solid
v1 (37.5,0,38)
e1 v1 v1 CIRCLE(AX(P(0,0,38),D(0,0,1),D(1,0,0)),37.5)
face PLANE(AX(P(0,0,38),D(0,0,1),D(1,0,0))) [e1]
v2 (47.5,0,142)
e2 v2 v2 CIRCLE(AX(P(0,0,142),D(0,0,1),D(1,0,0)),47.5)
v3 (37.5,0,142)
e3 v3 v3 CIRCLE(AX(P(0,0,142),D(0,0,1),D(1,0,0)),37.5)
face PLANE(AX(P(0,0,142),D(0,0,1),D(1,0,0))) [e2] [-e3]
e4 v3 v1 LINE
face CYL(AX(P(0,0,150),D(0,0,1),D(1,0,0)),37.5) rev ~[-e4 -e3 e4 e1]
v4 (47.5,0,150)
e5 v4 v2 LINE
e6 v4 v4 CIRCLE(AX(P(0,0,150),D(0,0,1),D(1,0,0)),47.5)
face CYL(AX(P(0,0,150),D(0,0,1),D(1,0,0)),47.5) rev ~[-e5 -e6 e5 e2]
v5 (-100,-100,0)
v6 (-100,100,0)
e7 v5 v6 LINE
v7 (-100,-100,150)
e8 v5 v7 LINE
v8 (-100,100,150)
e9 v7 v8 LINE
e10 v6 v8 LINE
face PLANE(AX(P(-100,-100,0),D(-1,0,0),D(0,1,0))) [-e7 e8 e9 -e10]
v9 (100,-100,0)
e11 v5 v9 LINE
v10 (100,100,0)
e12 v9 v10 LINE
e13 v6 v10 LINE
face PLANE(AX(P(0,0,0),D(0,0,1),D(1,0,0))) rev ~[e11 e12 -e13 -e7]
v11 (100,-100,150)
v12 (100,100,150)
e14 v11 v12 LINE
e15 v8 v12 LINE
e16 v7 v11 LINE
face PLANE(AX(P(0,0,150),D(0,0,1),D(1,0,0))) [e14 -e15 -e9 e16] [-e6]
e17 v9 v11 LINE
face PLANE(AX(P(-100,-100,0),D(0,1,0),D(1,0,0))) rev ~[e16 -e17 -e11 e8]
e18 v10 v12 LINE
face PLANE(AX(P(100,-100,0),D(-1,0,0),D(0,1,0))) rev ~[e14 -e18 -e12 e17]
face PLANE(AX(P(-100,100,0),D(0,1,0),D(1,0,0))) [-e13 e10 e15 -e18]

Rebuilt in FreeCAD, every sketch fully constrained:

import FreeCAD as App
import Part
import Sketcher

V = App.Vector


def add_polygon(sketch, points):
    """Adds a closed chain of lines whose ends are joined by coincident constraints."""
    first, n = sketch.GeometryCount, len(points)
    for a, b in zip(points, points[1:] + points[:1]):
        sketch.addGeometry(Part.LineSegment(App.Vector(*a, 0), App.Vector(*b, 0)), False)
    for i in range(n):
        sketch.addConstraint(Sketcher.Constraint("Coincident", first + i, 2, first + (i + 1) % n, 1))

doc = App.newDocument("Part")
params = doc.addObject("Spreadsheet::Sheet", "Params")
for row, (alias, value) in enumerate([
    ("sketch1_width", "200 mm"),
    ("pad1_length", "150 mm"),
    ("sketch2_diameter", "75 mm"),
    ("pocket1_length", "112 mm"),
    ("sketch3_diameter", "95 mm"),
    ("pocket2_length", "8 mm"),
], start=1):
    params.set(f"A{row}", alias)
    params.set(f"B{row}", "=" + value)
    params.setAlias(f"B{row}", alias)

body = doc.addObject("PartDesign::Body", "Body")

# Sketch on XY plane
sketch1 = body.newObject("Sketcher::SketchObject", "Sketch")
sketch1.AttachmentSupport = (doc.getObject("XY_Plane"), [""])
sketch1.MapMode = "FlatFace"
add_polygon(sketch1, [(-100, 100), (-100, -100), (100, -100), (100, 100)])  # lines 0-3
sketch1.addConstraint(Sketcher.Constraint("Vertical", 0))
sketch1.addConstraint(Sketcher.Constraint("Horizontal", 1))
sketch1.addConstraint(Sketcher.Constraint("Vertical", 2))
sketch1.addConstraint(Sketcher.Constraint("Horizontal", 3))
sketch1.addConstraint(Sketcher.Constraint("Symmetric", 0, 2, 2, 2, -1, 1))
sketch1.addConstraint(Sketcher.Constraint("Equal", 3, 0))
sketch1.addConstraint(Sketcher.Constraint("DistanceX", 1, 1, 1, 2, 200.0))
sketch1.setExpression("Constraints[10]", "Params.sketch1_width")
pad1 = body.newObject("PartDesign::Pad", "Pad")
pad1.Profile = sketch1
pad1.setExpression("Length", "Params.pad1_length")

# Sketch on XY plane
sketch2 = body.newObject("Sketcher::SketchObject", "Sketch001")
sketch2.AttachmentSupport = (doc.getObject("XY_Plane"), [""])
sketch2.MapMode = "FlatFace"
sketch2.AttachmentOffset = App.Placement(V(0, 0, 150), App.Rotation())
sketch2.addGeometry(Part.Circle(V(0, 0, 0), V(0, 0, 1), 37.5), False)
sketch2.addConstraint(Sketcher.Constraint("Coincident", 0, 3, -1, 1))
sketch2.addConstraint(Sketcher.Constraint("Diameter", 0, 75.0))
sketch2.setExpression("Constraints[1]", "Params.sketch2_diameter")
pocket1 = body.newObject("PartDesign::Pocket", "Pocket")
pocket1.Profile = sketch2
pocket1.setExpression("Length", "Params.pocket1_length")

# Sketch on XY plane
sketch3 = body.newObject("Sketcher::SketchObject", "Sketch002")
sketch3.AttachmentSupport = (doc.getObject("XY_Plane"), [""])
sketch3.MapMode = "FlatFace"
sketch3.AttachmentOffset = App.Placement(V(0, 0, 150), App.Rotation())
sketch3.addGeometry(Part.Circle(V(0, 0, 0), V(0, 0, 1), 47.5), False)
sketch3.addConstraint(Sketcher.Constraint("Coincident", 0, 3, -1, 1))
sketch3.addConstraint(Sketcher.Constraint("Diameter", 0, 95.0))
sketch3.setExpression("Constraints[1]", "Params.sketch3_diameter")
pocket2 = body.newObject("PartDesign::Pocket", "Pocket001")
pocket2.Profile = sketch3
pocket2.setExpression("Length", "Params.pocket2_length")

doc.recompute()
